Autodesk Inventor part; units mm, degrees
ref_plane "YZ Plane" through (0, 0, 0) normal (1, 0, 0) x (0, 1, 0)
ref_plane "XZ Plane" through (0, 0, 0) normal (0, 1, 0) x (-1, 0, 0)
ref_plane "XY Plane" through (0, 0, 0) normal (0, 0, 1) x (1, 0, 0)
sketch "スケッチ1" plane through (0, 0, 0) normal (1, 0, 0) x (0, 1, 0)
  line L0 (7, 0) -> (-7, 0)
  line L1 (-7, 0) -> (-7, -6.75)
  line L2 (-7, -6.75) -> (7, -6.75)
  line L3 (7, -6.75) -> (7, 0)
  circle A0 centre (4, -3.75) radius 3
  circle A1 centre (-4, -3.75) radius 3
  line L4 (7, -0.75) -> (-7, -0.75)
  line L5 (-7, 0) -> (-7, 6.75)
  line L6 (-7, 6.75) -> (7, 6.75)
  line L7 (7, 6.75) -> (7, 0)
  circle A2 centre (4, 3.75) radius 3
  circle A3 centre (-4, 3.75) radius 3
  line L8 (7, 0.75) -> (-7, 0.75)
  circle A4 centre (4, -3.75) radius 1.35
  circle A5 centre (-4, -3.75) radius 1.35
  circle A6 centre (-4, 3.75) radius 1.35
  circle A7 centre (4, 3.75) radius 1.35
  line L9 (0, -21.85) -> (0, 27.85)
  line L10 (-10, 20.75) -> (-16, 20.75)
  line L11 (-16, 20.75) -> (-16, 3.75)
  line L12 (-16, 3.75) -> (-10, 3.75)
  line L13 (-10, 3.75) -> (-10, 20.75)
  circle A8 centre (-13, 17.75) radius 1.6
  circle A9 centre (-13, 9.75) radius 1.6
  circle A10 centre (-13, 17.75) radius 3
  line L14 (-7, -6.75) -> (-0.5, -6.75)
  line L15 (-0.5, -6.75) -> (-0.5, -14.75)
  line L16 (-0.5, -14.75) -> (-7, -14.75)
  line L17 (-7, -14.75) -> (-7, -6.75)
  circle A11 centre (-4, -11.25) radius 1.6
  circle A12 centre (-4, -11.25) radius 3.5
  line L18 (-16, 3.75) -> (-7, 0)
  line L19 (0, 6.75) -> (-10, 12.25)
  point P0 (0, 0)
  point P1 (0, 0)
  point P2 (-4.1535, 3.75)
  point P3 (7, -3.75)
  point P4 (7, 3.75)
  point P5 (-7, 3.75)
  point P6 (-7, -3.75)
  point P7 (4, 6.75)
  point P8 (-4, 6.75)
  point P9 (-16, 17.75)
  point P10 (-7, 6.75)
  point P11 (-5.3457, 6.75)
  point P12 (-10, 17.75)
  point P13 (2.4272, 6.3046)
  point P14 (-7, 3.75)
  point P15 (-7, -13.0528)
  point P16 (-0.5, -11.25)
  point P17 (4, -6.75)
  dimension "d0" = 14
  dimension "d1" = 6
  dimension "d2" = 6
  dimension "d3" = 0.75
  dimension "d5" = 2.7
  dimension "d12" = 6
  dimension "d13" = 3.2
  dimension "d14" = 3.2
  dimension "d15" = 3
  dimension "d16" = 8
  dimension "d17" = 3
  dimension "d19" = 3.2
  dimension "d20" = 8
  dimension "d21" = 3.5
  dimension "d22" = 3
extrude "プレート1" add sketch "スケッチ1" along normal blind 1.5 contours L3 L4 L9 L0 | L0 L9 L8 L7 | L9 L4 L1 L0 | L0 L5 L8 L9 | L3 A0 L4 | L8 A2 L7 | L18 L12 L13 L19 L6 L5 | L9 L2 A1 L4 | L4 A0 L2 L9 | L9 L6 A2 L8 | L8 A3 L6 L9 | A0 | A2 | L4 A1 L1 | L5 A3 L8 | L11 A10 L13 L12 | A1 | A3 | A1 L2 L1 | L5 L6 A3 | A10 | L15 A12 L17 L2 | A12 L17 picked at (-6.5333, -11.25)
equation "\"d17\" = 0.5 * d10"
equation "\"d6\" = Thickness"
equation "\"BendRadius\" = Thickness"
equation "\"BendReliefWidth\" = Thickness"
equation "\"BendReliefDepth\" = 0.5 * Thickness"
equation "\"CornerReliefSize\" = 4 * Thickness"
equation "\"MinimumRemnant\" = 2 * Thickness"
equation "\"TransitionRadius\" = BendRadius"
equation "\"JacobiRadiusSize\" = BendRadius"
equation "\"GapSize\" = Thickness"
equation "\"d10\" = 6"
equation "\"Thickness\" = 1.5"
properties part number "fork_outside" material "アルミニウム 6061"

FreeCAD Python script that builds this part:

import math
import FreeCAD as App
import Part
import Sketcher
Q = App.Units.Quantity

doc = App.newDocument("Part")
body = doc.addObject("PartDesign::Body", "Body")

sketch1 = body.newObject("Sketcher::SketchObject", "Sketch")
sketch1.AttachmentSupport = (doc.getObject("YZ_Plane"), [""])
sketch1.MapMode = "FlatFace"
sketch1.addGeometry([
    Part.ArcOfCircle(Part.Circle(App.Vector(4, 3.75, 0), App.Vector(0, 0, 1), 3), math.radians(0), math.radians(90)),
    Part.LineSegment(App.Vector(4, 6.75, 0), App.Vector(0, 6.75, 0)),
    Part.LineSegment(App.Vector(0, 6.75, 0), App.Vector(-10, 12.25, 0)),
    Part.LineSegment(App.Vector(-10, 12.25, 0), App.Vector(-10, 17.75, 0)),
    Part.ArcOfCircle(Part.Circle(App.Vector(-13, 17.75, 0), App.Vector(0, 0, 1), 3), math.radians(0), math.radians(180)),
    Part.LineSegment(App.Vector(-16, 17.75, 0), App.Vector(-16, 3.75, 0)),
    Part.LineSegment(App.Vector(-16, 3.75, 0), App.Vector(-7, 0, 0)),
    Part.LineSegment(App.Vector(-7, 0, 0), App.Vector(-7, -13.052776, 0)),
    Part.ArcOfCircle(Part.Circle(App.Vector(-4, -11.25, 0), App.Vector(0, 0, 1), 3.5), math.radians(-148.997281), math.radians(0)),
    Part.LineSegment(App.Vector(-0.5, -11.25, 0), App.Vector(-0.5, -6.75, 0)),
    Part.LineSegment(App.Vector(-0.5, -6.75, 0), App.Vector(4, -6.75, 0)),
    Part.ArcOfCircle(Part.Circle(App.Vector(4, -3.75, 0), App.Vector(0, 0, 1), 3), math.radians(-90), math.radians(0)),
    Part.LineSegment(App.Vector(7, -3.75, 0), App.Vector(7, 3.75, 0)),
    Part.Circle(App.Vector(4, -3.75, 0), App.Vector(0, 0, 1), 1.35),
    Part.Circle(App.Vector(-4, -3.75, 0), App.Vector(0, 0, 1), 1.35),
    Part.Circle(App.Vector(4, 3.75, 0), App.Vector(0, 0, 1), 1.35),
    Part.Circle(App.Vector(-4, -11.25, 0), App.Vector(0, 0, 1), 1.6),
    Part.Circle(App.Vector(-4, 3.75, 0), App.Vector(0, 0, 1), 1.35),
    Part.Circle(App.Vector(-13, 9.75, 0), App.Vector(0, 0, 1), 1.6),
    Part.Circle(App.Vector(-13, 17.75, 0), App.Vector(0, 0, 1), 1.6),
], False)
sketch1.addConstraint([
    Sketcher.Constraint("Tangent", 0, 2, 1, 1),
    Sketcher.Constraint("Coincident", 1, 2, 2, 1),
    Sketcher.Constraint("Coincident", 2, 2, 3, 1),
    Sketcher.Constraint("Tangent", 3, 2, 4, 1),
    Sketcher.Constraint("Tangent", 4, 2, 5, 1),
    Sketcher.Constraint("Coincident", 5, 2, 6, 1),
    Sketcher.Constraint("Coincident", 6, 2, 7, 1),
    Sketcher.Constraint("Coincident", 7, 2, 8, 1),
    Sketcher.Constraint("Tangent", 8, 2, 9, 1),
    Sketcher.Constraint("Coincident", 9, 2, 10, 1),
    Sketcher.Constraint("Tangent", 10, 2, 11, 1),
    Sketcher.Constraint("Tangent", 11, 2, 12, 1),
    Sketcher.Constraint("Tangent", 12, 2, 0, 1),
    Sketcher.Constraint("Horizontal", 1),
    Sketcher.Constraint("Vertical", 3),
    Sketcher.Constraint("Vertical", 5),
    Sketcher.Constraint("Vertical", 7),
    Sketcher.Constraint("Vertical", 9),
    Sketcher.Constraint("Horizontal", 10),
    Sketcher.Constraint("Vertical", 12),
    Sketcher.Constraint("Coincident", 13, 3, 11, 3),
    Sketcher.Constraint("Coincident", 15, 3, 0, 3),
    Sketcher.Constraint("Coincident", 16, 3, 8, 3),
    Sketcher.Constraint("Coincident", 19, 3, 4, 3),
    Sketcher.Constraint("Equal", 0, 4),
    Sketcher.Constraint("Equal", 4, 11),
    Sketcher.Constraint("Equal", 13, 14),
    Sketcher.Constraint("Equal", 14, 15),
    Sketcher.Constraint("Equal", 15, 17),
    Sketcher.Constraint("Equal", 16, 18),
    Sketcher.Constraint("Equal", 18, 19),
    Sketcher.Constraint("Symmetric", 0, 3, 14, 3, -1, 1),
    Sketcher.Constraint("Symmetric", 11, 3, 17, 3, -1, 1),
    Sketcher.Constraint("PointOnObject", 1, 2, -2),
    Sketcher.Constraint("PointOnObject", 6, 2, -1),
    Sketcher.Constraint("Horizontal", 13, 3, 14, 3),
    Sketcher.Constraint("Horizontal", 17, 3, 5, 2),
    Sketcher.Constraint("Vertical", 8, 3, 14, 3),
    Sketcher.Constraint("Vertical", 4, 3, 18, 3),
    Sketcher.Constraint("Equal", 10, 9),
    Sketcher.Constraint("Radius", 0, Q("3 mm")),
    Sketcher.Constraint("Diameter", 13, Q("2.7 mm")),
    Sketcher.Constraint("Diameter", 16, Q("3.2 mm")),
    Sketcher.Constraint("Radius", 8, Q("3.5 mm")),
    Sketcher.Constraint("DistanceY", 5, 2, 5, 1, Q("14 mm")),
    Sketcher.Constraint("DistanceX", 8, 3, 0, 3, Q("8 mm")),
    Sketcher.Constraint("DistanceY", 18, 3, 4, 3, Q("8 mm")),
    Sketcher.Constraint("DistanceX", 2, 2, 17, 3, Q("6 mm")),
    Sketcher.Constraint("DistanceX", 6, 2, 14, 3, Q("3 mm")),
    Sketcher.Constraint("DistanceY", 3, 1, 3, 2, Q("5.5 mm")),
    Sketcher.Constraint("DistanceY", 12, 1, 12, 2, Q("7.5 mm")),
])
pad1 = body.newObject("PartDesign::Pad", "Pad")
pad1.Profile = sketch1
pad1.Length = 1.5

doc.recompute()
